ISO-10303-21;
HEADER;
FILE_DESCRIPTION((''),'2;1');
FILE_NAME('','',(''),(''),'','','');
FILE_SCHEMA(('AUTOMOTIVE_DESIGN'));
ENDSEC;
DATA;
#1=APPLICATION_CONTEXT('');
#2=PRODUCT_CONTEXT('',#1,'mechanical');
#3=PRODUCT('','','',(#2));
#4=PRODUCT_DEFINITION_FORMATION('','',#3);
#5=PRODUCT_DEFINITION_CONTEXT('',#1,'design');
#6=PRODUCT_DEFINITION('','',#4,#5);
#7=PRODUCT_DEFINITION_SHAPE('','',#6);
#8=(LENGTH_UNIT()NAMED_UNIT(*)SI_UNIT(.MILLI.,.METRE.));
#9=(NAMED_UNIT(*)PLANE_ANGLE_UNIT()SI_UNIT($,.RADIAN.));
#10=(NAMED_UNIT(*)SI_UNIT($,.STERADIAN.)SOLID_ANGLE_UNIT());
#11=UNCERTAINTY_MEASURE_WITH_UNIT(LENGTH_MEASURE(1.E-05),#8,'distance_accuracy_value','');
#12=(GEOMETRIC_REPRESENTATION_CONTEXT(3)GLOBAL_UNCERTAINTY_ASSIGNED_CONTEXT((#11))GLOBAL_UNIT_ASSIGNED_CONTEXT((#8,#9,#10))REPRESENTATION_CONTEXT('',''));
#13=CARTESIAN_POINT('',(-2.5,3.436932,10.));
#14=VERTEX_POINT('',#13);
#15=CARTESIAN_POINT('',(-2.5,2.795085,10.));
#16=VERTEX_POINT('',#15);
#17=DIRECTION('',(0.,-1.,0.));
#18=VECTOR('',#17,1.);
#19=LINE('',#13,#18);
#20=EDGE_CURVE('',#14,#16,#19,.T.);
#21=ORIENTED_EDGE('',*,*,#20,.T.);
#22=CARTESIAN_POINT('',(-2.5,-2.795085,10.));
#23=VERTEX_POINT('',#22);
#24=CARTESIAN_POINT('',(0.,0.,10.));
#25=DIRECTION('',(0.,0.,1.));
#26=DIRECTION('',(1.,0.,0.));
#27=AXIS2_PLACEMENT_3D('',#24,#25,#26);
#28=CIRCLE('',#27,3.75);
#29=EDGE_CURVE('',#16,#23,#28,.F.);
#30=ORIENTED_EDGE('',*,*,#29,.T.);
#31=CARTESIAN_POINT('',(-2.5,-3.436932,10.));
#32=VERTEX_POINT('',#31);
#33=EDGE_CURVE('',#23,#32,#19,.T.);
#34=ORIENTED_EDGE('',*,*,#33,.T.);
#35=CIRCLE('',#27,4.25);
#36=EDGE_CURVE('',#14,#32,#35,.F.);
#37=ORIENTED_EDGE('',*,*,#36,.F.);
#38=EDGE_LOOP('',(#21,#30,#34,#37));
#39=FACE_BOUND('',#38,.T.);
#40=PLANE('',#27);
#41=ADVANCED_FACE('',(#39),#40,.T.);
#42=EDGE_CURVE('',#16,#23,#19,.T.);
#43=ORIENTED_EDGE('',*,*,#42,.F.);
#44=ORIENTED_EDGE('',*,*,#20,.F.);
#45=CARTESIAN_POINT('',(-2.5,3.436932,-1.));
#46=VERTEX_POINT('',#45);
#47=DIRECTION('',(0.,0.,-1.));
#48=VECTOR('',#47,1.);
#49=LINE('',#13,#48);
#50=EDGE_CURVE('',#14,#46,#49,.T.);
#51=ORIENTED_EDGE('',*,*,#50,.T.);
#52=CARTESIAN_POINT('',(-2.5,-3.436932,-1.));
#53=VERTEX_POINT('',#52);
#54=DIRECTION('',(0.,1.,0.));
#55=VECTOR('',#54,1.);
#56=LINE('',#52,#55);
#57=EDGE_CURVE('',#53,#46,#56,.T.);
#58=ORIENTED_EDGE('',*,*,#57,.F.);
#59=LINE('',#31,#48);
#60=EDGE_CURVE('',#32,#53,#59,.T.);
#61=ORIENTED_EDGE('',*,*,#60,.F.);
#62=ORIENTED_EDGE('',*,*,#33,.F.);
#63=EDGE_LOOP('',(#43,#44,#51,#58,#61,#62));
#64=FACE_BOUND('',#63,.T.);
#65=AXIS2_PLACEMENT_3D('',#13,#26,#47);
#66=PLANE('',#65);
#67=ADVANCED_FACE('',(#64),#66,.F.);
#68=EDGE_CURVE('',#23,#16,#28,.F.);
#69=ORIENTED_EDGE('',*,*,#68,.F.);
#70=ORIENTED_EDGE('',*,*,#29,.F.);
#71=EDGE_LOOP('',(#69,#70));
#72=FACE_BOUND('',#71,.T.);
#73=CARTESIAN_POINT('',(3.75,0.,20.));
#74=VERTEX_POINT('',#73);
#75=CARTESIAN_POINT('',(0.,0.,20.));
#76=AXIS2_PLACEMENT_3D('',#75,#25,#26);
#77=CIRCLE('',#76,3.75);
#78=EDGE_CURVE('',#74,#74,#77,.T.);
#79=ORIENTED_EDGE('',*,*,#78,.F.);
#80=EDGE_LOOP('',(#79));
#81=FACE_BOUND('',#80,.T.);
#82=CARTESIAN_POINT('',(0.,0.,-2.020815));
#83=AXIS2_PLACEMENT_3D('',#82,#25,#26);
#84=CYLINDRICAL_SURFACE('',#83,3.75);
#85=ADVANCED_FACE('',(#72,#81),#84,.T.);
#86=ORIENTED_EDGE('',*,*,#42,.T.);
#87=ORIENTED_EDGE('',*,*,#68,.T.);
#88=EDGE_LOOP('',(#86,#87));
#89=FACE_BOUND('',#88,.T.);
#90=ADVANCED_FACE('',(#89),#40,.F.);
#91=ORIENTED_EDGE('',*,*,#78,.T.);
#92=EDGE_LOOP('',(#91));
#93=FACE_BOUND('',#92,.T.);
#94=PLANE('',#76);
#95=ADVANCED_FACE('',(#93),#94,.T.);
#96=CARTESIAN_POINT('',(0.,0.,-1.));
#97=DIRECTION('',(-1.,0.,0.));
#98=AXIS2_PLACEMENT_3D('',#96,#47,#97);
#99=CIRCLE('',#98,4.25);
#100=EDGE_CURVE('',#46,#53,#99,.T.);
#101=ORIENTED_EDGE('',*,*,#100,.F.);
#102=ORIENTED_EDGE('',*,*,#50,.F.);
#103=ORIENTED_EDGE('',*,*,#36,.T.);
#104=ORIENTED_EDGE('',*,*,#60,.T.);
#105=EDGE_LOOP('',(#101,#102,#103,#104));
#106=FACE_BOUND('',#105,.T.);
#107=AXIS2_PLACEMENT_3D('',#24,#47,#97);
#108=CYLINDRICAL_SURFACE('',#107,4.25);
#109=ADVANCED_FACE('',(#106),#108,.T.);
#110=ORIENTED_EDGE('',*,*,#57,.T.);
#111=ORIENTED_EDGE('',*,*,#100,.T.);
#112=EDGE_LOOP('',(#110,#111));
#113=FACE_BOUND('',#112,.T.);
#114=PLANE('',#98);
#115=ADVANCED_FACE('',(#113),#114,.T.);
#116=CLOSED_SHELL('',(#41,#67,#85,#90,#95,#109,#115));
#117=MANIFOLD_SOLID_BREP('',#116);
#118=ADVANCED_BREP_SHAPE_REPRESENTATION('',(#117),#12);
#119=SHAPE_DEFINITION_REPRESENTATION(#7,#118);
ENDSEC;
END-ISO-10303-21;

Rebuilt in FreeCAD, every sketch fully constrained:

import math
import FreeCAD as App
import Part
import Sketcher

V = App.Vector
Q = App.Units.Quantity

doc = App.newDocument("Part")
params = doc.addObject("Spreadsheet::Sheet", "Params")
for row, (alias, value) in enumerate([
    ("sketch1_radius", "4.25 mm"),
    ("pad1_length", "10 mm"),
    ("sketch2_diameter", "8.5 mm"),
    ("pad2_length", "20 mm"),
    ("sketch3_radius", "4.25 mm"),
    ("pad3_length", "1 mm"),
    ("sketch4_diameter", "8.5 mm"),
    ("sketch4_diameter2", "7.5 mm"),
    ("pocket1_length", "20 mm"),
    ("sketch5_diameter", "7.5 mm"),
    ("pocket2_length", "10 mm"),
], start=1):
    params.set(f"A{row}", alias)
    params.set(f"B{row}", "=" + value)
    params.setAlias(f"B{row}", alias)

body = doc.addObject("PartDesign::Body", "Body")

# Sketch on XY plane
sketch1 = body.newObject("Sketcher::SketchObject", "Sketch")
sketch1.AttachmentSupport = (doc.getObject("XY_Plane"), [""])
sketch1.MapMode = "FlatFace"
sketch1.addGeometry([
    Part.LineSegment(V(-2.5, 3.4, 0), V(-2.5, -3.4, 0)),
    Part.ArcOfCircle(Part.Circle(V(0, 0, 0), V(0, 0, 1), 4.2), math.radians(-126), math.radians(126)),
], False)
sketch1.addConstraint([
    Sketcher.Constraint("Coincident", 0, 1, 1, 2),
    Sketcher.Constraint("Coincident", 1, 1, 0, 2),
    Sketcher.Constraint("Vertical", 0),
    Sketcher.Constraint("Coincident", 1, 3, -1, 1),
    Sketcher.Constraint("Radius", 1, Q("4.25 mm")),
    Sketcher.Constraint("DistanceX", 0, 1, -1, 1, Q("2.5 mm")),
])
sketch1.setExpression("Constraints[4]", "Params.sketch1_radius")
pad1 = body.newObject("PartDesign::Pad", "Pad")
pad1.Profile = sketch1
pad1.setExpression("Length", "Params.pad1_length")

# Sketch on XY plane
sketch2 = body.newObject("Sketcher::SketchObject", "Sketch001")
sketch2.AttachmentSupport = (doc.getObject("XY_Plane"), [""])
sketch2.MapMode = "FlatFace"
sketch2.AttachmentOffset = App.Placement(V(0, 0, 10), App.Rotation())
sketch2.addGeometry(Part.Circle(V(0, 0, 0), V(0, 0, 1), 4.2), False)
sketch2.addConstraint([
    Sketcher.Constraint("Coincident", 0, 3, -1, 1),
    Sketcher.Constraint("Diameter", 0, Q("8.5 mm")),
])
sketch2.setExpression("Constraints[1]", "Params.sketch2_diameter")
pad2 = body.newObject("PartDesign::Pad", "Pad001")
pad2.Profile = sketch2
pad2.setExpression("Length", "Params.pad2_length")

# Sketch on XY plane
sketch3 = body.newObject("Sketcher::SketchObject", "Sketch002")
sketch3.AttachmentSupport = (doc.getObject("XY_Plane"), [""])
sketch3.MapMode = "FlatFace"
sketch3.AttachmentOffset = App.Placement(V(0, 0, -1), App.Rotation())
sketch3.addGeometry([
    Part.LineSegment(V(-2.5, -3.4, 0), V(-2.5, 3.4, 0)),
    Part.ArcOfCircle(Part.Circle(V(0, 0, 0), V(0, 0, 1), 4.2), math.radians(-126), math.radians(126)),
], False)
sketch3.addConstraint([
    Sketcher.Constraint("Coincident", 0, 1, 1, 1),
    Sketcher.Constraint("Coincident", 1, 2, 0, 2),
    Sketcher.Constraint("Vertical", 0),
    Sketcher.Constraint("Coincident", 1, 3, -1, 1),
    Sketcher.Constraint("Radius", 1, Q("4.25 mm")),
    Sketcher.Constraint("DistanceX", 0, 1, -1, 1, Q("2.5 mm")),
])
sketch3.setExpression("Constraints[4]", "Params.sketch3_radius")
pad3 = body.newObject("PartDesign::Pad", "Pad002")
pad3.Profile = sketch3
pad3.setExpression("Length", "Params.pad3_length")

# Sketch on XY plane
sketch4 = body.newObject("Sketcher::SketchObject", "Sketch003")
sketch4.AttachmentSupport = (doc.getObject("XY_Plane"), [""])
sketch4.MapMode = "FlatFace"
sketch4.AttachmentOffset = App.Placement(V(0, 0, 10), App.Rotation())
sketch4.addGeometry([
    Part.Circle(V(0, 0, 0), V(0, 0, 1), 4.2),
    Part.Circle(V(0, 0, 0), V(0, 0, 1), 3.8),
], False)
sketch4.addConstraint([
    Sketcher.Constraint("Coincident", 0, 3, -1, 1),
    Sketcher.Constraint("Coincident", 1, 3, -1, 1),
    Sketcher.Constraint("Diameter", 0, Q("8.5 mm")),
    Sketcher.Constraint("Diameter", 1, Q("7.5 mm")),
])
sketch4.setExpression("Constraints[2]", "Params.sketch4_diameter")
sketch4.setExpression("Constraints[3]", "Params.sketch4_diameter2")
pocket1 = body.newObject("PartDesign::Pocket", "Pocket")
pocket1.Profile = sketch4
pocket1.setExpression("Length", "Params.pocket1_length")
pocket1.Reversed = True

# Sketch on XY plane
sketch5 = body.newObject("Sketcher::SketchObject", "Sketch004")
sketch5.AttachmentSupport = (doc.getObject("XY_Plane"), [""])
sketch5.MapMode = "FlatFace"
sketch5.AttachmentOffset = App.Placement(V(0, 0, 20), App.Rotation())
sketch5.addGeometry(Part.Circle(V(0, 0, 0), V(0, 0, 1), 3.8), False)
sketch5.addConstraint([
    Sketcher.Constraint("Coincident", 0, 3, -1, 1),
    Sketcher.Constraint("Diameter", 0, Q("7.5 mm")),
])
sketch5.setExpression("Constraints[1]", "Params.sketch5_diameter")
pocket2 = body.newObject("PartDesign::Pocket", "Pocket001")
pocket2.Profile = sketch5
pocket2.setExpression("Length", "Params.pocket2_length")
pocket2.Reversed = True

doc.recompute()
